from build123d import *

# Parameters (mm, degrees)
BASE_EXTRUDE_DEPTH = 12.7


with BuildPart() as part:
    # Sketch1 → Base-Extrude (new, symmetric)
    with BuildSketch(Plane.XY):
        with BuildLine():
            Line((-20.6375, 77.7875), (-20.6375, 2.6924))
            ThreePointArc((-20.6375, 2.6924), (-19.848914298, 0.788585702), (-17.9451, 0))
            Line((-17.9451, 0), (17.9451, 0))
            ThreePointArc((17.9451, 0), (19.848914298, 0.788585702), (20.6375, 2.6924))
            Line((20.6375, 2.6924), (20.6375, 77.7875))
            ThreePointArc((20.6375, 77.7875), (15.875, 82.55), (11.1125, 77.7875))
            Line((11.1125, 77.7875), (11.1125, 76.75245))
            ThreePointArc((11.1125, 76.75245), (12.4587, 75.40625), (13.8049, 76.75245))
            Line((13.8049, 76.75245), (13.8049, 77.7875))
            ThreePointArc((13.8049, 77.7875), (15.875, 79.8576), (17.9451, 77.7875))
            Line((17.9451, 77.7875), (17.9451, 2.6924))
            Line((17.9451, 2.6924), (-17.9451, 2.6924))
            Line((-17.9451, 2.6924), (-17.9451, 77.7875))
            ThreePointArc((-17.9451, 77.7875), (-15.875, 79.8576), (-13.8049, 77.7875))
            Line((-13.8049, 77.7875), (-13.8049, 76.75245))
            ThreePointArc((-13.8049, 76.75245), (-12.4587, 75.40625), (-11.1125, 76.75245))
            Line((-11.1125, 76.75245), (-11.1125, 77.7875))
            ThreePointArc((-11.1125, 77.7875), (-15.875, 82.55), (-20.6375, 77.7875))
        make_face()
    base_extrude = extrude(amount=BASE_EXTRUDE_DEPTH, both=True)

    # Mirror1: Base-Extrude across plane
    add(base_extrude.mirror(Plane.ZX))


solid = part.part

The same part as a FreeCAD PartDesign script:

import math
import FreeCAD as App
import Part
import Sketcher
Q = App.Units.Quantity

doc = App.newDocument("Part")
params = doc.addObject("Spreadsheet::Sheet", "Params")
for row, (alias, value) in enumerate([
    ("sketch1_radius", "0.106 in"),
    ("sketch1_radius2", "0.1875 in"),
    ("sketch1_width", "1.413 in"),
    ("pad1_length", "1 in"),
], start=1):
    params.set(f"A{row}", alias)
    params.set(f"B{row}", "=" + value)
    params.setAlias(f"B{row}", alias)

body = doc.addObject("PartDesign::Body", "Body")

# Sketch on XY plane
sketch1 = body.newObject("Sketcher::SketchObject", "Sketch")
sketch1.AttachmentSupport = (doc.getObject("XY_Plane"), [""])
sketch1.MapMode = "FlatFace"
sketch1.addGeometry([
    Part.LineSegment(App.Vector(-20.6375, 77.7875, 0), App.Vector(-20.6375, 2.6924, 0)),  # 0
    Part.ArcOfCircle(Part.Circle(App.Vector(-17.9451, 2.6924, 0), App.Vector(0, 0, 1), 2.6924), math.radians(180), math.radians(270)),  # 1
    Part.LineSegment(App.Vector(-17.9451, 0, 0), App.Vector(17.9451, 0, 0)),  # 2
    Part.ArcOfCircle(Part.Circle(App.Vector(17.9451, 2.6924, 0), App.Vector(0, 0, 1), 2.6924), math.radians(-90), math.radians(0)),  # 3
    Part.LineSegment(App.Vector(20.6375, 2.6924, 0), App.Vector(20.6375, 77.7875, 0)),  # 4
    Part.ArcOfCircle(Part.Circle(App.Vector(15.875, 77.7875, 0), App.Vector(0, 0, 1), 4.7625), math.radians(0), math.radians(180)),  # 5
    Part.LineSegment(App.Vector(11.1125, 77.7875, 0), App.Vector(11.1125, 76.75245, 0)),  # 6
    Part.ArcOfCircle(Part.Circle(App.Vector(12.4587, 76.75245, 0), App.Vector(0, 0, 1), 1.3462), math.radians(180), math.radians(360)),  # 7
    Part.LineSegment(App.Vector(13.8049, 76.75245, 0), App.Vector(13.8049, 77.7875, 0)),  # 8
    Part.ArcOfCircle(Part.Circle(App.Vector(15.875, 77.7875, 0), App.Vector(0, 0, 1), 2.0701), math.radians(0), math.radians(180)),  # 9
    Part.LineSegment(App.Vector(17.9451, 77.7875, 0), App.Vector(17.9451, 2.6924, 0)),  # 10
    Part.LineSegment(App.Vector(17.9451, 2.6924, 0), App.Vector(-17.9451, 2.6924, 0)),  # 11
    Part.LineSegment(App.Vector(-17.9451, 2.6924, 0), App.Vector(-17.9451, 77.7875, 0)),  # 12
    Part.ArcOfCircle(Part.Circle(App.Vector(-15.875, 77.7875, 0), App.Vector(0, 0, 1), 2.0701), math.radians(0), math.radians(180)),  # 13
    Part.LineSegment(App.Vector(-13.8049, 77.7875, 0), App.Vector(-13.8049, 76.75245, 0)),  # 14
    Part.ArcOfCircle(Part.Circle(App.Vector(-12.4587, 76.75245, 0), App.Vector(0, 0, 1), 1.3462), math.radians(180), math.radians(360)),  # 15
    Part.LineSegment(App.Vector(-11.1125, 76.75245, 0), App.Vector(-11.1125, 77.7875, 0)),  # 16
    Part.ArcOfCircle(Part.Circle(App.Vector(-15.875, 77.7875, 0), App.Vector(0, 0, 1), 4.7625), math.radians(0), math.radians(180)),  # 17
], False)
sketch1.addConstraint([
    Sketcher.Constraint("Tangent", 0, 2, 1, 1),
    Sketcher.Constraint("Tangent", 1, 2, 2, 1),
    Sketcher.Constraint("Tangent", 2, 2, 3, 1),
    Sketcher.Constraint("Tangent", 3, 2, 4, 1),
    Sketcher.Constraint("Tangent", 4, 2, 5, 1),
    Sketcher.Constraint("Tangent", 5, 2, 6, 1),
    Sketcher.Constraint("Tangent", 6, 2, 7, 1),
    Sketcher.Constraint("Tangent", 7, 2, 8, 1),
    Sketcher.Constraint("Tangent", 8, 2, 9, 2),
    Sketcher.Constraint("Tangent", 9, 1, 10, 1),
    Sketcher.Constraint("Coincident", 10, 2, 11, 1),
    Sketcher.Constraint("Coincident", 11, 2, 12, 1),
    Sketcher.Constraint("Tangent", 12, 2, 13, 2),
    Sketcher.Constraint("Tangent", 13, 1, 14, 1),
    Sketcher.Constraint("Tangent", 14, 2, 15, 1),
    Sketcher.Constraint("Tangent", 15, 2, 16, 1),
    Sketcher.Constraint("Tangent", 16, 2, 17, 1),
    Sketcher.Constraint("Tangent", 17, 2, 0, 1),
    Sketcher.Constraint("Vertical", 0),
    Sketcher.Constraint("Horizontal", 2),
    Sketcher.Constraint("Vertical", 4),
    Sketcher.Constraint("Vertical", 6),
    Sketcher.Constraint("Vertical", 8),
    Sketcher.Constraint("Vertical", 10),
    Sketcher.Constraint("Horizontal", 11),
    Sketcher.Constraint("Vertical", 12),
    Sketcher.Constraint("Vertical", 14),
    Sketcher.Constraint("Vertical", 16),
    Sketcher.Constraint("Coincident", 9, 3, 5, 3),
    Sketcher.Constraint("Coincident", 17, 3, 13, 3),
    Sketcher.Constraint("Coincident", 10, 2, 3, 3),
    Sketcher.Constraint("Coincident", 11, 2, 1, 3),
    Sketcher.Constraint("Equal", 9, 13),
    Sketcher.Constraint("Symmetric", 1, 2, 2, 2, -1, 1),
    Sketcher.Constraint("Horizontal", 9, 3, 13, 3),
    Sketcher.Constraint("Horizontal", 7, 3, 15, 3),
    Sketcher.Constraint("Radius", 1, Q("0.106 in")),
    Sketcher.Constraint("Radius", 5, Q("0.1875 in")),
    Sketcher.Constraint("DistanceX", 2, 1, 2, 2, Q("1.413 in")),
    Sketcher.Constraint("DistanceY", 0, 2, 0, 1, Q("2.9565 in")),
    Sketcher.Constraint("DistanceY", 6, 2, 6, 1, Q("1.03505 mm")),
])
sketch1.setExpression("Constraints[36]", "Params.sketch1_radius")
sketch1.setExpression("Constraints[37]", "Params.sketch1_radius2")
sketch1.setExpression("Constraints[38]", "Params.sketch1_width")
pad1 = body.newObject("PartDesign::Pad", "Pad")
pad1.Profile = sketch1
pad1.setExpression("Length", "Params.pad1_length")
pad1.Midplane = True
doc.recompute()

mirrored = body.newObject("PartDesign::Mirrored", "Mirrored")
mirrored.Originals = [pad1]
mirrored.MirrorPlane = (doc.getObject("XZ_Plane"), [""])
body.Tip = mirrored

doc.recompute()
